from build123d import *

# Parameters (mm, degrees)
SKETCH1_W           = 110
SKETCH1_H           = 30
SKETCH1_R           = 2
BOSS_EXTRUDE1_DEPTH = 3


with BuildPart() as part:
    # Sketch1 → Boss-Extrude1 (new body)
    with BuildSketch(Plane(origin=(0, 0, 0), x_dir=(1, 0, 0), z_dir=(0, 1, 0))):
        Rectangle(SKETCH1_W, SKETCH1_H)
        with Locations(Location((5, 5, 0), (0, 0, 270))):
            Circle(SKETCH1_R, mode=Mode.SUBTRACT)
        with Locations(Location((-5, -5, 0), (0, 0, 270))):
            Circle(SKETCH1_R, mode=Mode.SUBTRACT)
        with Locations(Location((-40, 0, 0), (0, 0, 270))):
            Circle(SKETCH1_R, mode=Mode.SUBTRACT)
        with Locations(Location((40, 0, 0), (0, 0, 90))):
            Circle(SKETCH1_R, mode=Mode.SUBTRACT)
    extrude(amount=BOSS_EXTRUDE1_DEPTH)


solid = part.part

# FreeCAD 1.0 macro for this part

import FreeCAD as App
import Part
import Sketcher
from FreeCAD import Vector
Q = App.Units.Quantity

doc = App.newDocument("Part")
body = doc.addObject("PartDesign::Body", "Body")

# Sketch on XZ plane
sketch1 = doc.addObject("Sketcher::SketchObject", "Sketch")
body.addObject(sketch1)
sketch1.AttachmentSupport = (doc.XZ_Plane, [""])
sketch1.MapMode = "FlatFace"
sketch1.addGeometry(Part.LineSegment(Vector(-55, -15, 0), Vector(-55, 15, 0)), False)
sketch1.addGeometry(Part.LineSegment(Vector(-55, 15, 0), Vector(55, 15, 0)), False)
sketch1.addGeometry(Part.LineSegment(Vector(55, 15, 0), Vector(55, -15, 0)), False)
sketch1.addGeometry(Part.LineSegment(Vector(55, -15, 0), Vector(-55, -15, 0)), False)
sketch1.addGeometry(Part.Circle(Vector(-5, 5, 0), Vector(0, 0, 1), 2), False)
sketch1.addGeometry(Part.Circle(Vector(-40, 0, 0), Vector(0, 0, 1), 2), False)
sketch1.addGeometry(Part.Circle(Vector(40, 0, 0), Vector(0, 0, 1), 2), False)
sketch1.addGeometry(Part.Circle(Vector(5, -5, 0), Vector(0, 0, 1), 2), False)
sketch1.addConstraint(Sketcher.Constraint("Coincident", 0, 2, 1, 1))
sketch1.addConstraint(Sketcher.Constraint("Coincident", 1, 2, 2, 1))
sketch1.addConstraint(Sketcher.Constraint("Coincident", 2, 2, 3, 1))
sketch1.addConstraint(Sketcher.Constraint("Coincident", 3, 2, 0, 1))
sketch1.addConstraint(Sketcher.Constraint("Vertical", 0))
sketch1.addConstraint(Sketcher.Constraint("Horizontal", 1))
sketch1.addConstraint(Sketcher.Constraint("Vertical", 2))
sketch1.addConstraint(Sketcher.Constraint("Horizontal", 3))
sketch1.addConstraint(Sketcher.Constraint("Equal", 4, 5))
sketch1.addConstraint(Sketcher.Constraint("Equal", 5, 6))
sketch1.addConstraint(Sketcher.Constraint("Equal", 6, 7))
sketch1.addConstraint(Sketcher.Constraint("Symmetric", 5, 3, 6, 3, -1, 1))
sketch1.addConstraint(Sketcher.Constraint("Symmetric", 4, 3, 7, 3, -1, 1))
sketch1.addConstraint(Sketcher.Constraint("Symmetric", 0, 2, 2, 2, -1, 1))
sketch1.addConstraint(Sketcher.Constraint("PointOnObject", 5, 3, -1))
sketch1.addConstraint(Sketcher.Constraint("Diameter", 4, Q("4 mm")))
sketch1.addConstraint(Sketcher.Constraint("DistanceX", 1, 1, 1, 2, Q("110 mm")))
sketch1.addConstraint(Sketcher.Constraint("DistanceY", 0, 1, 0, 2, Q("30 mm")))
sketch1.addConstraint(Sketcher.Constraint("DistanceX", 4, 3, -1, 1, Q("5 mm")))
sketch1.addConstraint(Sketcher.Constraint("DistanceY", -1, 1, 4, 3, Q("5 mm")))
sketch1.addConstraint(Sketcher.Constraint("DistanceX", 5, 3, -1, 1, Q("40 mm")))
pad1 = doc.addObject("PartDesign::Pad", "Pad")
body.addObject(pad1)
pad1.Profile = sketch1
pad1.Length = 3
pad1.Reversed = True

doc.recompute()
